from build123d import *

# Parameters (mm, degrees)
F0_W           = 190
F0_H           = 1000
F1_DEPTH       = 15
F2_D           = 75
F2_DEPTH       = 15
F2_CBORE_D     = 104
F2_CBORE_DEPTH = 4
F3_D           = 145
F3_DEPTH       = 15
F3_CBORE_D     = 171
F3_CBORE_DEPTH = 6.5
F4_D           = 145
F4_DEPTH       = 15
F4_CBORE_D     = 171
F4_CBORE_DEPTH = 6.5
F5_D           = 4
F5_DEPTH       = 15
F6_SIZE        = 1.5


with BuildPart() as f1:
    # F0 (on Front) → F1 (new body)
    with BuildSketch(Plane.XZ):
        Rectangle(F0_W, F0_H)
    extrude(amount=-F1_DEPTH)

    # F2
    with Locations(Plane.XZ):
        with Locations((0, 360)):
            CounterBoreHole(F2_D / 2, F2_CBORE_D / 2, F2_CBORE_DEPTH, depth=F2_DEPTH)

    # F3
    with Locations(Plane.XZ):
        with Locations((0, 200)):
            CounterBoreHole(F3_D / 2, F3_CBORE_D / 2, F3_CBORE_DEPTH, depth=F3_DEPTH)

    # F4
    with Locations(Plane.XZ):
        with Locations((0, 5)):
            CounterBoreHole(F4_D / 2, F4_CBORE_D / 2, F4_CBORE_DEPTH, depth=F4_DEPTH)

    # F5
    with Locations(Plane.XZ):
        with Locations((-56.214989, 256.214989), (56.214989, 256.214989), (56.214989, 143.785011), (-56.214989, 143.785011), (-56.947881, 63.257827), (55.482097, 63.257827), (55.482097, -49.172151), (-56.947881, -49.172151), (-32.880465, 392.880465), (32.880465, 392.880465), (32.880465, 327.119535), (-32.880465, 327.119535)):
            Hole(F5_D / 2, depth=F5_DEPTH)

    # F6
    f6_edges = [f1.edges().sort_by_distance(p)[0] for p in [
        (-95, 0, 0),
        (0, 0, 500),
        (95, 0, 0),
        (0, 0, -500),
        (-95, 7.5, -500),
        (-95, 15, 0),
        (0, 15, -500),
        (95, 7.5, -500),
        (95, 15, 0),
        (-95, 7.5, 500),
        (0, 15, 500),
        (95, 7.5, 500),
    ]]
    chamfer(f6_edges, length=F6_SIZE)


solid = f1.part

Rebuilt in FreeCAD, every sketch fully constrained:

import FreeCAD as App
import Part
import Sketcher

V = App.Vector


def edges_at(feature, points):
    """Names of the edges that pass closest to the given points."""
    edges = feature.Shape.Edges
    near = lambda p: min(range(len(edges)), key=lambda i: edges[i].distToShape(Part.Vertex(*p))[0])
    return sorted({f"Edge{near(p) + 1}" for p in points})


def add_polygon(sketch, points):
    """Adds a closed chain of lines whose ends are joined by coincident constraints."""
    first, n = sketch.GeometryCount, len(points)
    for a, b in zip(points, points[1:] + points[:1]):
        sketch.addGeometry(Part.LineSegment(App.Vector(*a, 0), App.Vector(*b, 0)), False)
    for i in range(n):
        sketch.addConstraint(Sketcher.Constraint("Coincident", first + i, 2, first + (i + 1) % n, 1))

doc = App.newDocument("Part")
body = doc.addObject("PartDesign::Body", "Body")

# Sketch on XZ plane
sketch1 = body.newObject("Sketcher::SketchObject", "Sketch")
sketch1.AttachmentSupport = (doc.getObject("XZ_Plane"), [""])
sketch1.MapMode = "FlatFace"
add_polygon(sketch1, [(-95, 500), (-95, -500), (95, -500), (95, 500)])  # lines 0-3
sketch1.addConstraint([
    Sketcher.Constraint("Vertical", 0),
    Sketcher.Constraint("Horizontal", 1),
    Sketcher.Constraint("Vertical", 2),
    Sketcher.Constraint("Horizontal", 3),
    Sketcher.Constraint("Symmetric", 0, 2, 2, 2, -1, 1),
    Sketcher.Constraint("DistanceX", 1, 1, 1, 2, 190.0),
    Sketcher.Constraint("DistanceY", 0, 2, 0, 1, 1000.0),
])
pad1 = body.newObject("PartDesign::Pad", "Pad")
pad1.Profile = sketch1
pad1.Length = 15
pad1.Reversed = True

# Sketch on XZ plane
sketch2 = body.newObject("Sketcher::SketchObject", "Sketch001")
sketch2.AttachmentSupport = (doc.getObject("XZ_Plane"), [""])
sketch2.MapMode = "FlatFace"
sketch2.addGeometry(Part.Circle(V(0, 360, 0), V(0, 0, 1), 38), False)
sketch2.addConstraint([
    Sketcher.Constraint("PointOnObject", 0, 3, -2),
    Sketcher.Constraint("Diameter", 0, 75.0),
    Sketcher.Constraint("DistanceY", -1, 1, 0, 3, 360.0),
])
doc.recompute()
hole = body.newObject("PartDesign::Hole", "Hole")
hole.Profile = sketch2
hole.ThreadType = "None"
hole.Diameter = 75
hole.DepthType = "Dimension"
hole.Depth = 15
hole.DrillPoint = "Flat"
hole.HoleCutType = "Counterbore"
hole.HoleCutDiameter = 104
hole.HoleCutDepth = 4

# Sketch on XZ plane
sketch3 = body.newObject("Sketcher::SketchObject", "Sketch002")
sketch3.AttachmentSupport = (doc.getObject("XZ_Plane"), [""])
sketch3.MapMode = "FlatFace"
sketch3.addGeometry(Part.Circle(V(0, 200, 0), V(0, 0, 1), 72), False)
sketch3.addConstraint([
    Sketcher.Constraint("PointOnObject", 0, 3, -2),
    Sketcher.Constraint("Diameter", 0, 145.0),
    Sketcher.Constraint("DistanceY", -1, 1, 0, 3, 200.0),
])
doc.recompute()
hole2 = body.newObject("PartDesign::Hole", "Hole001")
hole2.Profile = sketch3
hole2.ThreadType = "None"
hole2.Diameter = 145
hole2.DepthType = "Dimension"
hole2.Depth = 15
hole2.DrillPoint = "Flat"
hole2.HoleCutType = "Counterbore"
hole2.HoleCutDiameter = 171
hole2.HoleCutDepth = 6.5

# Sketch on XZ plane
sketch4 = body.newObject("Sketcher::SketchObject", "Sketch003")
sketch4.AttachmentSupport = (doc.getObject("XZ_Plane"), [""])
sketch4.MapMode = "FlatFace"
sketch4.addGeometry(Part.Circle(V(0, 5, 0), V(0, 0, 1), 72), False)
sketch4.addConstraint([
    Sketcher.Constraint("PointOnObject", 0, 3, -2),
    Sketcher.Constraint("Diameter", 0, 145.0),
    Sketcher.Constraint("DistanceY", -1, 1, 0, 3, 5.0),
])
doc.recompute()
hole3 = body.newObject("PartDesign::Hole", "Hole002")
hole3.Profile = sketch4
hole3.ThreadType = "None"
hole3.Diameter = 145
hole3.DepthType = "Dimension"
hole3.Depth = 15
hole3.DrillPoint = "Flat"
hole3.HoleCutType = "Counterbore"
hole3.HoleCutDiameter = 171
hole3.HoleCutDepth = 6.5

# Sketch on XZ plane
sketch5 = body.newObject("Sketcher::SketchObject", "Sketch004")
sketch5.AttachmentSupport = (doc.getObject("XZ_Plane"), [""])
sketch5.MapMode = "FlatFace"
sketch5.addGeometry([
    Part.Circle(V(-56.2, 256.2, 0), V(0, 0, 1), 2),  # 0
    Part.Circle(V(56.2, 256.2, 0), V(0, 0, 1), 2),  # 1
    Part.Circle(V(56.2, 143.8, 0), V(0, 0, 1), 2),  # 2
    Part.Circle(V(-56.2, 143.8, 0), V(0, 0, 1), 2),  # 3
    Part.Circle(V(-56.9, 63.3, 0), V(0, 0, 1), 2),  # 4
    Part.Circle(V(55.5, 63.3, 0), V(0, 0, 1), 2),  # 5
    Part.Circle(V(55.5, -49.2, 0), V(0, 0, 1), 2),  # 6
    Part.Circle(V(-56.9, -49.2, 0), V(0, 0, 1), 2),  # 7
    Part.Circle(V(-32.9, 392.9, 0), V(0, 0, 1), 2),  # 8
    Part.Circle(V(32.9, 392.9, 0), V(0, 0, 1), 2),  # 9
    Part.Circle(V(32.9, 327.1, 0), V(0, 0, 1), 2),  # 10
    Part.Circle(V(-32.9, 327.1, 0), V(0, 0, 1), 2),  # 11
], False)
sketch5.addConstraint([
    Sketcher.Constraint("Equal", 0, 1),
    Sketcher.Constraint("Equal", 1, 2),
    Sketcher.Constraint("Equal", 2, 3),
    Sketcher.Constraint("Equal", 3, 4),
    Sketcher.Constraint("Equal", 4, 5),
    Sketcher.Constraint("Equal", 5, 6),
    Sketcher.Constraint("Equal", 6, 7),
    Sketcher.Constraint("Equal", 7, 8),
    Sketcher.Constraint("Equal", 8, 9),
    Sketcher.Constraint("Equal", 9, 10),
    Sketcher.Constraint("Equal", 10, 11),
    Sketcher.Constraint("Symmetric", 0, 3, 1, 3, -2),
    Sketcher.Constraint("Symmetric", 2, 3, 3, 3, -2),
    Sketcher.Constraint("Symmetric", 8, 3, 9, 3, -2),
    Sketcher.Constraint("Symmetric", 10, 3, 11, 3, -2),
    Sketcher.Constraint("Horizontal", 4, 3, 5, 3),
    Sketcher.Constraint("Horizontal", 6, 3, 7, 3),
    Sketcher.Constraint("Vertical", 1, 3, 2, 3),
    Sketcher.Constraint("Vertical", 5, 3, 6, 3),
    Sketcher.Constraint("Vertical", 4, 3, 7, 3),
    Sketcher.Constraint("Vertical", 9, 3, 10, 3),
    Sketcher.Constraint("Diameter", 0, 4.0),
    Sketcher.Constraint("DistanceX", 0, 3, -1, 1, 56.214989),
    Sketcher.Constraint("DistanceY", -1, 1, 0, 3, 256.214989),
    Sketcher.Constraint("DistanceY", -1, 1, 2, 3, 143.785011),
    Sketcher.Constraint("DistanceX", 4, 3, -1, 1, 56.947881),
    Sketcher.Constraint("DistanceY", 6, 3, -1, 1, 49.172151),
    Sketcher.Constraint("DistanceX", 5, 3, 2, 3, 0.732892),
    Sketcher.Constraint("DistanceY", 6, 3, 5, 3, 112.429978),
    Sketcher.Constraint("DistanceY", 4, 3, 8, 3, 329.622638),
    Sketcher.Constraint("DistanceX", 8, 3, 9, 3, 65.76093),
    Sketcher.Constraint("DistanceY", 10, 3, 9, 3, 65.76093),
])
doc.recompute()
hole4 = body.newObject("PartDesign::Hole", "Hole003")
hole4.Profile = sketch5
hole4.ThreadType = "None"
hole4.Diameter = 4
hole4.DepthType = "Dimension"
hole4.Depth = 15
hole4.DrillPoint = "Flat"
doc.recompute()

chamfer = body.newObject("PartDesign::Chamfer", "Chamfer")
chamfer.Base = (hole4, edges_at(hole4, [
    (-95, 0, 0),
    (0, 0, 500),
    (95, 0, 0),
    (0, 0, -500),
    (-95, 7.5, -500),
    (-95, 15, 0),
    (0, 15, -500),
    (95, 7.5, -500),
    (95, 15, 0),
    (-95, 7.5, 500),
    (0, 15, 500),
    (95, 7.5, 500),
]))
chamfer.Size = 1.5

doc.recompute()
